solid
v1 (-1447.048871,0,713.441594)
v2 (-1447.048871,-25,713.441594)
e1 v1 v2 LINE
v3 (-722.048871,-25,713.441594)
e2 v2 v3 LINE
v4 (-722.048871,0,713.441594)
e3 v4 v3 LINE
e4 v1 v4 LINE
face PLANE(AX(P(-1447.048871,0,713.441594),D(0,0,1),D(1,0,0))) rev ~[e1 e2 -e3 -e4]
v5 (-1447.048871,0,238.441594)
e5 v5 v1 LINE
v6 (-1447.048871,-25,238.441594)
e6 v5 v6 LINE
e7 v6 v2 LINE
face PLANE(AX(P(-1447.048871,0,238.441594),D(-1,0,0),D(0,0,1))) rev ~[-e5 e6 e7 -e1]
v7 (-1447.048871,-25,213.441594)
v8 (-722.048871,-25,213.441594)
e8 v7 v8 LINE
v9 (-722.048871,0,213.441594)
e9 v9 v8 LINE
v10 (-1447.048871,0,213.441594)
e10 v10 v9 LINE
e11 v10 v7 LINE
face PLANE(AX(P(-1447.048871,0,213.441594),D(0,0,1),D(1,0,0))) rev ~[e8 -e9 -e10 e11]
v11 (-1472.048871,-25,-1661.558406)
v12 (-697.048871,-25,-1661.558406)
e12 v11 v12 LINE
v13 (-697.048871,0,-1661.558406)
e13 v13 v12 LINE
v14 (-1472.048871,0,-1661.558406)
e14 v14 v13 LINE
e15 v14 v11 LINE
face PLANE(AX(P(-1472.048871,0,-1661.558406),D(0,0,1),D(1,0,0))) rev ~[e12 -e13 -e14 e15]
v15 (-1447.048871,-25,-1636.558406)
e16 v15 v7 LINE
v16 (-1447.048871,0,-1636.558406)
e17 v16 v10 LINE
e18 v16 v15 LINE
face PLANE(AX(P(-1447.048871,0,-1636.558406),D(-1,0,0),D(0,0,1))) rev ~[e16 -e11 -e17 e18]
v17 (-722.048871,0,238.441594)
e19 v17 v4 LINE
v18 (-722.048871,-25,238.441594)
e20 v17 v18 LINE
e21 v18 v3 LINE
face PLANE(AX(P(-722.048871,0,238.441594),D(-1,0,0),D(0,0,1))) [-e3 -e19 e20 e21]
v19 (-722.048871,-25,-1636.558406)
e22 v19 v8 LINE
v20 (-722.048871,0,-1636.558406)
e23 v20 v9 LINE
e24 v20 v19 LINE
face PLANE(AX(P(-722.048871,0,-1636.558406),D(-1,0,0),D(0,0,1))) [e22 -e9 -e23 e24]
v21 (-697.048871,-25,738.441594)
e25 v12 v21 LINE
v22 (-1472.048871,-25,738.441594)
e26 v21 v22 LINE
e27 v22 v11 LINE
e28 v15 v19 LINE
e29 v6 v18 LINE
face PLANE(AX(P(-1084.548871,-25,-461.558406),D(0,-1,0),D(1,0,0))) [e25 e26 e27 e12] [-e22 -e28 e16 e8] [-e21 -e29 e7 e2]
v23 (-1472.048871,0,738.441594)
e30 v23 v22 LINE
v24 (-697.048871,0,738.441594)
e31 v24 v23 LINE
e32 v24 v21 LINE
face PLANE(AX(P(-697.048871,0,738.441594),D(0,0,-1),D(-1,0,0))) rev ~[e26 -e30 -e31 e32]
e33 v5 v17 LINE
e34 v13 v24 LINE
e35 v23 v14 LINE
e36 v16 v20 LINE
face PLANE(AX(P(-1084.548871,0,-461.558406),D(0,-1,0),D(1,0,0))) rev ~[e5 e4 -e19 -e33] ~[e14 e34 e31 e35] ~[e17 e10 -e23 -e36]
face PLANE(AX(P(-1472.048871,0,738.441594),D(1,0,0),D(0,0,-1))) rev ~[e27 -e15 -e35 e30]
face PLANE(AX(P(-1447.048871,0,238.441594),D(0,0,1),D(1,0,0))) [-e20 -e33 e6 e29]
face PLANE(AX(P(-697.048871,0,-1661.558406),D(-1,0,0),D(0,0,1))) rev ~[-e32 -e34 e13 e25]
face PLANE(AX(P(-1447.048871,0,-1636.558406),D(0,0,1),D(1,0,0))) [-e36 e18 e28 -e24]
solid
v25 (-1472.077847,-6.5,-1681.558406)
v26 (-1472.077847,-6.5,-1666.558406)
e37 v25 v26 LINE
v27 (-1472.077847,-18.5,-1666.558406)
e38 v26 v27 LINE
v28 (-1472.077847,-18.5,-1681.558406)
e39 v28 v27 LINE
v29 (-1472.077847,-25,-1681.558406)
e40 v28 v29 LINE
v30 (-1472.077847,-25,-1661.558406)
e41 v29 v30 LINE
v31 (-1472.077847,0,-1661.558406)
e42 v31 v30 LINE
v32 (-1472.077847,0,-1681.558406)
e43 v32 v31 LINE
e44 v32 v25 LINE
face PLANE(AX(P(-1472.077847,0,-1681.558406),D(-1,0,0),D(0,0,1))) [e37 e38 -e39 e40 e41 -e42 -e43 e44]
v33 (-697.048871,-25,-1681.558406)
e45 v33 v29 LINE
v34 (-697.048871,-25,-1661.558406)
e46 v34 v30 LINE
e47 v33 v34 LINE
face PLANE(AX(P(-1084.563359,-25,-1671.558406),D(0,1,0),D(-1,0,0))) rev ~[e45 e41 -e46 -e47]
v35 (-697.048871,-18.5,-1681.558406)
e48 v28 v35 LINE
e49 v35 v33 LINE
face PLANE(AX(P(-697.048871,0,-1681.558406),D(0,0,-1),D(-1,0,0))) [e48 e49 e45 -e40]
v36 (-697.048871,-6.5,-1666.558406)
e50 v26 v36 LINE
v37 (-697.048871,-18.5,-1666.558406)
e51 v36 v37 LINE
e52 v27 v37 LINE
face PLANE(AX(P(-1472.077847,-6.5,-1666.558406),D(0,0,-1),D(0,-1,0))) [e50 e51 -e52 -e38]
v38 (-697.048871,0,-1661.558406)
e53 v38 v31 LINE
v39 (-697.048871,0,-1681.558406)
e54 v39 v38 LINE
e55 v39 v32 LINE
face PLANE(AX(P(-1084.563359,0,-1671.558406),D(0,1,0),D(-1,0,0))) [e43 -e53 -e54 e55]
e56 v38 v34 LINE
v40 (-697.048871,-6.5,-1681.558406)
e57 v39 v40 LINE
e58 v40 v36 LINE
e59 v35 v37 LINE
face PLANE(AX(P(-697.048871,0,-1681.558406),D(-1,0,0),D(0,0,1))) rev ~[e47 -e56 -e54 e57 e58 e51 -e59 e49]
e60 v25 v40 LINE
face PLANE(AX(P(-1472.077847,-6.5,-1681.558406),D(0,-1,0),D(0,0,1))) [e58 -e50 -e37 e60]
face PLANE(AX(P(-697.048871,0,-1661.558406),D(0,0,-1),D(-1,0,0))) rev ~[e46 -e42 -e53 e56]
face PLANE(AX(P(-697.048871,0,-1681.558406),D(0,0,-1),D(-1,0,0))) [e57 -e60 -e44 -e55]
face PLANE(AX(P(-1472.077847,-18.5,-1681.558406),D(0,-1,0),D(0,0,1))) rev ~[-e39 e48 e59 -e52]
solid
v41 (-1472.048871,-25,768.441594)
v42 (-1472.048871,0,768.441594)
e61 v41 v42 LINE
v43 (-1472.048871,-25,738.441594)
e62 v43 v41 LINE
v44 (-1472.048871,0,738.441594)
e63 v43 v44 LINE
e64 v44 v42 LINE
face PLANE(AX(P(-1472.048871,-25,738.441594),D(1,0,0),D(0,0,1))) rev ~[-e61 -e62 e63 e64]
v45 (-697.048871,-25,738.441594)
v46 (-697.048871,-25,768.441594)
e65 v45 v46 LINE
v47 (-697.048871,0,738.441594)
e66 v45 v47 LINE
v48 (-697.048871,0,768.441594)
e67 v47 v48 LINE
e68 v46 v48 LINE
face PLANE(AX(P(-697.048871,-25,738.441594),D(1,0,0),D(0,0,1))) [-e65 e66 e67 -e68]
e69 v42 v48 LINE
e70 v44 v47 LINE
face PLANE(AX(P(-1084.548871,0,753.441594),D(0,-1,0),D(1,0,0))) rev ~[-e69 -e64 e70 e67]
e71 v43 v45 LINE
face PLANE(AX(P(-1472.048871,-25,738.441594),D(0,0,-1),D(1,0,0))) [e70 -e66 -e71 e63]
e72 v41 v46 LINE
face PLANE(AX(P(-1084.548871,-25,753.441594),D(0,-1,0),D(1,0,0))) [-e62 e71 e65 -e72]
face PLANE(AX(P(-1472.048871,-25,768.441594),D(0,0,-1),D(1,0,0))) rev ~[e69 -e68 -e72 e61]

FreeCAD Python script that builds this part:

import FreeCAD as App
import Part
import Sketcher
Q = App.Units.Quantity


def add_polygon(sketch, points):
    """Adds a closed chain of lines whose ends are joined by coincident constraints."""
    first, n = sketch.GeometryCount, len(points)
    for a, b in zip(points, points[1:] + points[:1]):
        sketch.addGeometry(Part.LineSegment(App.Vector(*a, 0), App.Vector(*b, 0)), False)
    for i in range(n):
        sketch.addConstraint(Sketcher.Constraint("Coincident", first + i, 2, first + (i + 1) % n, 1))

doc = App.newDocument("Part")
body = doc.addObject("PartDesign::Body", "Body")

# Sketch on XZ plane
sketch1 = body.newObject("Sketcher::SketchObject", "Sketch")
sketch1.AttachmentSupport = (doc.getObject("XZ_Plane"), [""])
sketch1.MapMode = "FlatFace"
add_polygon(sketch1, [(-697.048871, 738.441594), (-1472.048871, 738.441594), (-1472.048871, -1661.558406), (-697.048871, -1661.558406)])  # lines 0-3
add_polygon(sketch1, [(-722.048871, -1636.558406), (-1447.048871, -1636.558406), (-1447.048871, 213.441594), (-722.048871, 213.441594)])  # lines 4-7
add_polygon(sketch1, [(-722.048871, 238.441594), (-1447.048871, 238.441594), (-1447.048871, 713.441594), (-722.048871, 713.441594)])  # lines 8-11
sketch1.addConstraint(Sketcher.Constraint("Horizontal", 0))
sketch1.addConstraint(Sketcher.Constraint("Vertical", 1))
sketch1.addConstraint(Sketcher.Constraint("Horizontal", 2))
sketch1.addConstraint(Sketcher.Constraint("Vertical", 3))
sketch1.addConstraint(Sketcher.Constraint("Horizontal", 4))
sketch1.addConstraint(Sketcher.Constraint("Vertical", 5))
sketch1.addConstraint(Sketcher.Constraint("Horizontal", 6))
sketch1.addConstraint(Sketcher.Constraint("Vertical", 7))
sketch1.addConstraint(Sketcher.Constraint("Horizontal", 8))
sketch1.addConstraint(Sketcher.Constraint("Vertical", 9))
sketch1.addConstraint(Sketcher.Constraint("Horizontal", 10))
sketch1.addConstraint(Sketcher.Constraint("Vertical", 11))
sketch1.addConstraint(Sketcher.Constraint("Vertical", 5, 2, 8, 2))
sketch1.addConstraint(Sketcher.Constraint("Vertical", 7, 2, 10, 2))
sketch1.addConstraint(Sketcher.Constraint("DistanceX", 0, 2, 0, 1, Q("775 mm")))
sketch1.addConstraint(Sketcher.Constraint("DistanceX", 4, 2, 4, 1, Q("725 mm")))
sketch1.addConstraint(Sketcher.Constraint("DistanceY", 1, 2, 1, 1, Q("2400 mm")))
sketch1.addConstraint(Sketcher.Constraint("DistanceY", 5, 1, 5, 2, Q("1850 mm")))
sketch1.addConstraint(Sketcher.Constraint("DistanceY", 9, 1, 9, 2, Q("475 mm")))
sketch1.addConstraint(Sketcher.Constraint("DistanceX", 1, 2, 4, 2, Q("25 mm")))
sketch1.addConstraint(Sketcher.Constraint("DistanceY", 1, 2, 4, 2, Q("25 mm")))
sketch1.addConstraint(Sketcher.Constraint("DistanceY", 5, 2, 8, 2, Q("25 mm")))
sketch1.addConstraint(Sketcher.Constraint("DistanceX", 0, 2, -1, 1, Q("1472.048871 mm")))
sketch1.addConstraint(Sketcher.Constraint("DistanceY", -1, 1, 0, 2, Q("738.441594 mm")))
pad1 = body.newObject("PartDesign::Pad", "Pad")
pad1.Profile = sketch1
pad1.Length = 25
body2 = doc.addObject("PartDesign::Body", "Body001")

# Sketch on XZ plane
sketch2 = body2.newObject("Sketcher::SketchObject", "Sketch001")
sketch2.AttachmentSupport = (doc.getObject("XZ_Plane001"), [""])
sketch2.MapMode = "FlatFace"
add_polygon(sketch2, [(-697.048871, -1661.558406), (-697.048871, -1681.558406), (-1472.077847, -1681.558406), (-1472.077847, -1661.558406)])  # lines 0-3
sketch2.addConstraint(Sketcher.Constraint("Vertical", 0))
sketch2.addConstraint(Sketcher.Constraint("Horizontal", 1))
sketch2.addConstraint(Sketcher.Constraint("Vertical", 2))
sketch2.addConstraint(Sketcher.Constraint("Horizontal", 3))
sketch2.addConstraint(Sketcher.Constraint("DistanceY", 0, 2, 0, 1, Q("20 mm")))
sketch2.addConstraint(Sketcher.Constraint("DistanceX", 1, 2, 1, 1, Q("775.028976 mm")))
sketch2.addConstraint(Sketcher.Constraint("DistanceX", 0, 2, -1, 1, Q("697.048871 mm")))
sketch2.addConstraint(Sketcher.Constraint("DistanceY", 0, 2, -1, 1, Q("1681.558406 mm")))
pad2 = body2.newObject("PartDesign::Pad", "Pad001")
pad2.Profile = sketch2
pad2.Length = 25

# Sketch on YZ plane
sketch3 = body2.newObject("Sketcher::SketchObject", "Sketch002")
sketch3.AttachmentSupport = (doc.getObject("YZ_Plane001"), [""])
sketch3.MapMode = "FlatFace"
sketch3.AttachmentOffset = App.Placement(App.Vector(0, 0, -1472.077847), App.Rotation())
add_polygon(sketch3, [(-6.5, -1666.558406), (-6.5, -1681.558406), (-18.5, -1681.558406), (-18.5, -1666.558406)])  # lines 0-3
sketch3.addConstraint(Sketcher.Constraint("Vertical", 0))
sketch3.addConstraint(Sketcher.Constraint("Horizontal", 1))
sketch3.addConstraint(Sketcher.Constraint("Vertical", 2))
sketch3.addConstraint(Sketcher.Constraint("Horizontal", 3))
sketch3.addConstraint(Sketcher.Constraint("DistanceX", 1, 2, 1, 1, Q("12 mm")))
sketch3.addConstraint(Sketcher.Constraint("DistanceY", 0, 2, 0, 1, Q("15 mm")))
sketch3.addConstraint(Sketcher.Constraint("DistanceX", 0, 2, -1, 1, Q("6.5 mm")))
sketch3.addConstraint(Sketcher.Constraint("DistanceY", 0, 2, -1, 1, Q("1681.558406 mm")))
pocket1 = body2.newObject("PartDesign::Pocket", "Pocket")
pocket1.Profile = sketch3
pocket1.Type = "ThroughAll"
pocket1.Reversed = True
body3 = doc.addObject("PartDesign::Body", "Body002")

# Sketch on XZ plane
sketch4 = body3.newObject("Sketcher::SketchObject", "Sketch003")
sketch4.AttachmentSupport = (doc.getObject("XZ_Plane002"), [""])
sketch4.MapMode = "FlatFace"
sketch4.AttachmentOffset = App.Placement(App.Vector(0, 0, 25), App.Rotation())
add_polygon(sketch4, [(-1472.048871, 768.441594), (-1472.048871, 738.441594), (-697.048871, 738.441594), (-697.048871, 768.441594)])  # lines 0-3
sketch4.addConstraint(Sketcher.Constraint("Vertical", 0))
sketch4.addConstraint(Sketcher.Constraint("Horizontal", 1))
sketch4.addConstraint(Sketcher.Constraint("Vertical", 2))
sketch4.addConstraint(Sketcher.Constraint("Horizontal", 3))
sketch4.addConstraint(Sketcher.Constraint("DistanceX", 1, 1, 1, 2, Q("775 mm")))
sketch4.addConstraint(Sketcher.Constraint("DistanceY", 0, 2, 0, 1, Q("30 mm")))
sketch4.addConstraint(Sketcher.Constraint("DistanceX", 0, 2, -1, 1, Q("1472.048871 mm")))
sketch4.addConstraint(Sketcher.Constraint("DistanceY", -1, 1, 0, 2, Q("738.441594 mm")))
pad3 = body3.newObject("PartDesign::Pad", "Pad002")
pad3.Profile = sketch4
pad3.Length = 25
pad3.Reversed = True

doc.recompute()
